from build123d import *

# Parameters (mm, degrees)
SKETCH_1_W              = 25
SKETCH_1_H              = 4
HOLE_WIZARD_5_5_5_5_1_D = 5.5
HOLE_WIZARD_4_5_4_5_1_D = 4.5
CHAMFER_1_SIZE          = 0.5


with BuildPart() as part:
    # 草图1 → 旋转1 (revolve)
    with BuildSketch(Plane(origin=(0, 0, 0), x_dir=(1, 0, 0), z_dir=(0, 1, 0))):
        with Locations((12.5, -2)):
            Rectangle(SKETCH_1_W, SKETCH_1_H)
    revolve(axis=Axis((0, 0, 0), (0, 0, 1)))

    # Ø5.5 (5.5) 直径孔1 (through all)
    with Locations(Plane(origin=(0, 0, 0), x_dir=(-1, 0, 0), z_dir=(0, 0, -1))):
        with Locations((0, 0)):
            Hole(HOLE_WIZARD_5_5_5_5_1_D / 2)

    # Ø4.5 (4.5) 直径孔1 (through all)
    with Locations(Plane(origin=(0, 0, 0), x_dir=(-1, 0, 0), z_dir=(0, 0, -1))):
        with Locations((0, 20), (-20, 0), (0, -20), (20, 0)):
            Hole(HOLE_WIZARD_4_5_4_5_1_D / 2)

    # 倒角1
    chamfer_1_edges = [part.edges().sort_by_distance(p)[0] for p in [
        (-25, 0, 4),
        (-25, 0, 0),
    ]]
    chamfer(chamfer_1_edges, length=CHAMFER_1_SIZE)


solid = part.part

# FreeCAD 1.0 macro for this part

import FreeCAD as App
import Part
import Sketcher


def edges_at(feature, points):
    """Names of the edges that pass closest to the given points."""
    edges = feature.Shape.Edges
    near = lambda p: min(range(len(edges)), key=lambda i: edges[i].distToShape(Part.Vertex(*p))[0])
    return sorted({f"Edge{near(p) + 1}" for p in points})


def add_polygon(sketch, points):
    """Adds a closed chain of lines whose ends are joined by coincident constraints."""
    first, n = sketch.GeometryCount, len(points)
    for a, b in zip(points, points[1:] + points[:1]):
        sketch.addGeometry(Part.LineSegment(App.Vector(*a, 0), App.Vector(*b, 0)), False)
    for i in range(n):
        sketch.addConstraint(Sketcher.Constraint("Coincident", first + i, 2, first + (i + 1) % n, 1))

doc = App.newDocument("Part")
body = doc.addObject("PartDesign::Body", "Body")

# Sketch on XZ plane
sketch1 = body.newObject("Sketcher::SketchObject", "Sketch")
sketch1.AttachmentSupport = (doc.getObject("XZ_Plane"), [""])
sketch1.MapMode = "FlatFace"
add_polygon(sketch1, [(0, 0), (0, 4), (25, 4), (25, 0)])  # lines 0-3
sketch1.addConstraint(Sketcher.Constraint("Vertical", 0))
sketch1.addConstraint(Sketcher.Constraint("Horizontal", 1))
sketch1.addConstraint(Sketcher.Constraint("Vertical", 2))
sketch1.addConstraint(Sketcher.Constraint("Horizontal", 3))
sketch1.addConstraint(Sketcher.Constraint("Coincident", 3, 2, -1, 1))
sketch1.addConstraint(Sketcher.Constraint("DistanceX", 1, 1, 1, 2, 25.0))
sketch1.addConstraint(Sketcher.Constraint("DistanceY", 0, 1, 0, 2, 4.0))
revolution = body.newObject("PartDesign::Revolution", "Revolution")
revolution.Profile = sketch1
revolution.ReferenceAxis = (sketch1, ["V_Axis"])
revolution.Angle = 360

# Sketch on XY plane
sketch2 = body.newObject("Sketcher::SketchObject", "Sketch001")
sketch2.AttachmentSupport = (doc.getObject("XY_Plane"), [""])
sketch2.MapMode = "FlatFace"
sketch2.addGeometry(Part.Circle(App.Vector(0, 0, 0), App.Vector(0, 0, 1), 2.8), False)
sketch2.addConstraint(Sketcher.Constraint("Coincident", 0, 3, -1, 1))
sketch2.addConstraint(Sketcher.Constraint("Diameter", 0, 5.5))
doc.recompute()
hole = body.newObject("PartDesign::Hole", "Hole")
hole.Profile = sketch2
hole.ThreadType = "None"
hole.Diameter = 5.5
hole.DepthType = "ThroughAll"
hole.Reversed = True

# Sketch on XY plane
sketch3 = body.newObject("Sketcher::SketchObject", "Sketch002")
sketch3.AttachmentSupport = (doc.getObject("XY_Plane"), [""])
sketch3.MapMode = "FlatFace"
sketch3.addGeometry(Part.Circle(App.Vector(0, 20, 0), App.Vector(0, 0, 1), 2.2), False)
sketch3.addGeometry(Part.Circle(App.Vector(20, 0, 0), App.Vector(0, 0, 1), 2.2), False)
sketch3.addGeometry(Part.Circle(App.Vector(0, -20, 0), App.Vector(0, 0, 1), 2.2), False)
sketch3.addGeometry(Part.Circle(App.Vector(-20, 0, 0), App.Vector(0, 0, 1), 2.2), False)
sketch3.addConstraint(Sketcher.Constraint("Equal", 0, 1))
sketch3.addConstraint(Sketcher.Constraint("Equal", 1, 2))
sketch3.addConstraint(Sketcher.Constraint("Equal", 2, 3))
sketch3.addConstraint(Sketcher.Constraint("Symmetric", 0, 3, 2, 3, -1, 1))
sketch3.addConstraint(Sketcher.Constraint("Symmetric", 1, 3, 3, 3, -1, 1))
sketch3.addConstraint(Sketcher.Constraint("PointOnObject", 0, 3, -2))
sketch3.addConstraint(Sketcher.Constraint("PointOnObject", 1, 3, -1))
sketch3.addConstraint(Sketcher.Constraint("Diameter", 0, 4.5))
sketch3.addConstraint(Sketcher.Constraint("DistanceY", -1, 1, 0, 3, 20.0))
sketch3.addConstraint(Sketcher.Constraint("DistanceX", -1, 1, 1, 3, 20.0))
doc.recompute()
hole2 = body.newObject("PartDesign::Hole", "Hole001")
hole2.Profile = sketch3
hole2.ThreadType = "None"
hole2.Diameter = 4.5
hole2.DepthType = "ThroughAll"
hole2.Reversed = True
doc.recompute()

chamfer = body.newObject("PartDesign::Chamfer", "Chamfer")
chamfer.Base = (hole2, edges_at(hole2, [(-25, 0, 4), (-25, 0, 0)]))
chamfer.Size = 0.5

doc.recompute()
